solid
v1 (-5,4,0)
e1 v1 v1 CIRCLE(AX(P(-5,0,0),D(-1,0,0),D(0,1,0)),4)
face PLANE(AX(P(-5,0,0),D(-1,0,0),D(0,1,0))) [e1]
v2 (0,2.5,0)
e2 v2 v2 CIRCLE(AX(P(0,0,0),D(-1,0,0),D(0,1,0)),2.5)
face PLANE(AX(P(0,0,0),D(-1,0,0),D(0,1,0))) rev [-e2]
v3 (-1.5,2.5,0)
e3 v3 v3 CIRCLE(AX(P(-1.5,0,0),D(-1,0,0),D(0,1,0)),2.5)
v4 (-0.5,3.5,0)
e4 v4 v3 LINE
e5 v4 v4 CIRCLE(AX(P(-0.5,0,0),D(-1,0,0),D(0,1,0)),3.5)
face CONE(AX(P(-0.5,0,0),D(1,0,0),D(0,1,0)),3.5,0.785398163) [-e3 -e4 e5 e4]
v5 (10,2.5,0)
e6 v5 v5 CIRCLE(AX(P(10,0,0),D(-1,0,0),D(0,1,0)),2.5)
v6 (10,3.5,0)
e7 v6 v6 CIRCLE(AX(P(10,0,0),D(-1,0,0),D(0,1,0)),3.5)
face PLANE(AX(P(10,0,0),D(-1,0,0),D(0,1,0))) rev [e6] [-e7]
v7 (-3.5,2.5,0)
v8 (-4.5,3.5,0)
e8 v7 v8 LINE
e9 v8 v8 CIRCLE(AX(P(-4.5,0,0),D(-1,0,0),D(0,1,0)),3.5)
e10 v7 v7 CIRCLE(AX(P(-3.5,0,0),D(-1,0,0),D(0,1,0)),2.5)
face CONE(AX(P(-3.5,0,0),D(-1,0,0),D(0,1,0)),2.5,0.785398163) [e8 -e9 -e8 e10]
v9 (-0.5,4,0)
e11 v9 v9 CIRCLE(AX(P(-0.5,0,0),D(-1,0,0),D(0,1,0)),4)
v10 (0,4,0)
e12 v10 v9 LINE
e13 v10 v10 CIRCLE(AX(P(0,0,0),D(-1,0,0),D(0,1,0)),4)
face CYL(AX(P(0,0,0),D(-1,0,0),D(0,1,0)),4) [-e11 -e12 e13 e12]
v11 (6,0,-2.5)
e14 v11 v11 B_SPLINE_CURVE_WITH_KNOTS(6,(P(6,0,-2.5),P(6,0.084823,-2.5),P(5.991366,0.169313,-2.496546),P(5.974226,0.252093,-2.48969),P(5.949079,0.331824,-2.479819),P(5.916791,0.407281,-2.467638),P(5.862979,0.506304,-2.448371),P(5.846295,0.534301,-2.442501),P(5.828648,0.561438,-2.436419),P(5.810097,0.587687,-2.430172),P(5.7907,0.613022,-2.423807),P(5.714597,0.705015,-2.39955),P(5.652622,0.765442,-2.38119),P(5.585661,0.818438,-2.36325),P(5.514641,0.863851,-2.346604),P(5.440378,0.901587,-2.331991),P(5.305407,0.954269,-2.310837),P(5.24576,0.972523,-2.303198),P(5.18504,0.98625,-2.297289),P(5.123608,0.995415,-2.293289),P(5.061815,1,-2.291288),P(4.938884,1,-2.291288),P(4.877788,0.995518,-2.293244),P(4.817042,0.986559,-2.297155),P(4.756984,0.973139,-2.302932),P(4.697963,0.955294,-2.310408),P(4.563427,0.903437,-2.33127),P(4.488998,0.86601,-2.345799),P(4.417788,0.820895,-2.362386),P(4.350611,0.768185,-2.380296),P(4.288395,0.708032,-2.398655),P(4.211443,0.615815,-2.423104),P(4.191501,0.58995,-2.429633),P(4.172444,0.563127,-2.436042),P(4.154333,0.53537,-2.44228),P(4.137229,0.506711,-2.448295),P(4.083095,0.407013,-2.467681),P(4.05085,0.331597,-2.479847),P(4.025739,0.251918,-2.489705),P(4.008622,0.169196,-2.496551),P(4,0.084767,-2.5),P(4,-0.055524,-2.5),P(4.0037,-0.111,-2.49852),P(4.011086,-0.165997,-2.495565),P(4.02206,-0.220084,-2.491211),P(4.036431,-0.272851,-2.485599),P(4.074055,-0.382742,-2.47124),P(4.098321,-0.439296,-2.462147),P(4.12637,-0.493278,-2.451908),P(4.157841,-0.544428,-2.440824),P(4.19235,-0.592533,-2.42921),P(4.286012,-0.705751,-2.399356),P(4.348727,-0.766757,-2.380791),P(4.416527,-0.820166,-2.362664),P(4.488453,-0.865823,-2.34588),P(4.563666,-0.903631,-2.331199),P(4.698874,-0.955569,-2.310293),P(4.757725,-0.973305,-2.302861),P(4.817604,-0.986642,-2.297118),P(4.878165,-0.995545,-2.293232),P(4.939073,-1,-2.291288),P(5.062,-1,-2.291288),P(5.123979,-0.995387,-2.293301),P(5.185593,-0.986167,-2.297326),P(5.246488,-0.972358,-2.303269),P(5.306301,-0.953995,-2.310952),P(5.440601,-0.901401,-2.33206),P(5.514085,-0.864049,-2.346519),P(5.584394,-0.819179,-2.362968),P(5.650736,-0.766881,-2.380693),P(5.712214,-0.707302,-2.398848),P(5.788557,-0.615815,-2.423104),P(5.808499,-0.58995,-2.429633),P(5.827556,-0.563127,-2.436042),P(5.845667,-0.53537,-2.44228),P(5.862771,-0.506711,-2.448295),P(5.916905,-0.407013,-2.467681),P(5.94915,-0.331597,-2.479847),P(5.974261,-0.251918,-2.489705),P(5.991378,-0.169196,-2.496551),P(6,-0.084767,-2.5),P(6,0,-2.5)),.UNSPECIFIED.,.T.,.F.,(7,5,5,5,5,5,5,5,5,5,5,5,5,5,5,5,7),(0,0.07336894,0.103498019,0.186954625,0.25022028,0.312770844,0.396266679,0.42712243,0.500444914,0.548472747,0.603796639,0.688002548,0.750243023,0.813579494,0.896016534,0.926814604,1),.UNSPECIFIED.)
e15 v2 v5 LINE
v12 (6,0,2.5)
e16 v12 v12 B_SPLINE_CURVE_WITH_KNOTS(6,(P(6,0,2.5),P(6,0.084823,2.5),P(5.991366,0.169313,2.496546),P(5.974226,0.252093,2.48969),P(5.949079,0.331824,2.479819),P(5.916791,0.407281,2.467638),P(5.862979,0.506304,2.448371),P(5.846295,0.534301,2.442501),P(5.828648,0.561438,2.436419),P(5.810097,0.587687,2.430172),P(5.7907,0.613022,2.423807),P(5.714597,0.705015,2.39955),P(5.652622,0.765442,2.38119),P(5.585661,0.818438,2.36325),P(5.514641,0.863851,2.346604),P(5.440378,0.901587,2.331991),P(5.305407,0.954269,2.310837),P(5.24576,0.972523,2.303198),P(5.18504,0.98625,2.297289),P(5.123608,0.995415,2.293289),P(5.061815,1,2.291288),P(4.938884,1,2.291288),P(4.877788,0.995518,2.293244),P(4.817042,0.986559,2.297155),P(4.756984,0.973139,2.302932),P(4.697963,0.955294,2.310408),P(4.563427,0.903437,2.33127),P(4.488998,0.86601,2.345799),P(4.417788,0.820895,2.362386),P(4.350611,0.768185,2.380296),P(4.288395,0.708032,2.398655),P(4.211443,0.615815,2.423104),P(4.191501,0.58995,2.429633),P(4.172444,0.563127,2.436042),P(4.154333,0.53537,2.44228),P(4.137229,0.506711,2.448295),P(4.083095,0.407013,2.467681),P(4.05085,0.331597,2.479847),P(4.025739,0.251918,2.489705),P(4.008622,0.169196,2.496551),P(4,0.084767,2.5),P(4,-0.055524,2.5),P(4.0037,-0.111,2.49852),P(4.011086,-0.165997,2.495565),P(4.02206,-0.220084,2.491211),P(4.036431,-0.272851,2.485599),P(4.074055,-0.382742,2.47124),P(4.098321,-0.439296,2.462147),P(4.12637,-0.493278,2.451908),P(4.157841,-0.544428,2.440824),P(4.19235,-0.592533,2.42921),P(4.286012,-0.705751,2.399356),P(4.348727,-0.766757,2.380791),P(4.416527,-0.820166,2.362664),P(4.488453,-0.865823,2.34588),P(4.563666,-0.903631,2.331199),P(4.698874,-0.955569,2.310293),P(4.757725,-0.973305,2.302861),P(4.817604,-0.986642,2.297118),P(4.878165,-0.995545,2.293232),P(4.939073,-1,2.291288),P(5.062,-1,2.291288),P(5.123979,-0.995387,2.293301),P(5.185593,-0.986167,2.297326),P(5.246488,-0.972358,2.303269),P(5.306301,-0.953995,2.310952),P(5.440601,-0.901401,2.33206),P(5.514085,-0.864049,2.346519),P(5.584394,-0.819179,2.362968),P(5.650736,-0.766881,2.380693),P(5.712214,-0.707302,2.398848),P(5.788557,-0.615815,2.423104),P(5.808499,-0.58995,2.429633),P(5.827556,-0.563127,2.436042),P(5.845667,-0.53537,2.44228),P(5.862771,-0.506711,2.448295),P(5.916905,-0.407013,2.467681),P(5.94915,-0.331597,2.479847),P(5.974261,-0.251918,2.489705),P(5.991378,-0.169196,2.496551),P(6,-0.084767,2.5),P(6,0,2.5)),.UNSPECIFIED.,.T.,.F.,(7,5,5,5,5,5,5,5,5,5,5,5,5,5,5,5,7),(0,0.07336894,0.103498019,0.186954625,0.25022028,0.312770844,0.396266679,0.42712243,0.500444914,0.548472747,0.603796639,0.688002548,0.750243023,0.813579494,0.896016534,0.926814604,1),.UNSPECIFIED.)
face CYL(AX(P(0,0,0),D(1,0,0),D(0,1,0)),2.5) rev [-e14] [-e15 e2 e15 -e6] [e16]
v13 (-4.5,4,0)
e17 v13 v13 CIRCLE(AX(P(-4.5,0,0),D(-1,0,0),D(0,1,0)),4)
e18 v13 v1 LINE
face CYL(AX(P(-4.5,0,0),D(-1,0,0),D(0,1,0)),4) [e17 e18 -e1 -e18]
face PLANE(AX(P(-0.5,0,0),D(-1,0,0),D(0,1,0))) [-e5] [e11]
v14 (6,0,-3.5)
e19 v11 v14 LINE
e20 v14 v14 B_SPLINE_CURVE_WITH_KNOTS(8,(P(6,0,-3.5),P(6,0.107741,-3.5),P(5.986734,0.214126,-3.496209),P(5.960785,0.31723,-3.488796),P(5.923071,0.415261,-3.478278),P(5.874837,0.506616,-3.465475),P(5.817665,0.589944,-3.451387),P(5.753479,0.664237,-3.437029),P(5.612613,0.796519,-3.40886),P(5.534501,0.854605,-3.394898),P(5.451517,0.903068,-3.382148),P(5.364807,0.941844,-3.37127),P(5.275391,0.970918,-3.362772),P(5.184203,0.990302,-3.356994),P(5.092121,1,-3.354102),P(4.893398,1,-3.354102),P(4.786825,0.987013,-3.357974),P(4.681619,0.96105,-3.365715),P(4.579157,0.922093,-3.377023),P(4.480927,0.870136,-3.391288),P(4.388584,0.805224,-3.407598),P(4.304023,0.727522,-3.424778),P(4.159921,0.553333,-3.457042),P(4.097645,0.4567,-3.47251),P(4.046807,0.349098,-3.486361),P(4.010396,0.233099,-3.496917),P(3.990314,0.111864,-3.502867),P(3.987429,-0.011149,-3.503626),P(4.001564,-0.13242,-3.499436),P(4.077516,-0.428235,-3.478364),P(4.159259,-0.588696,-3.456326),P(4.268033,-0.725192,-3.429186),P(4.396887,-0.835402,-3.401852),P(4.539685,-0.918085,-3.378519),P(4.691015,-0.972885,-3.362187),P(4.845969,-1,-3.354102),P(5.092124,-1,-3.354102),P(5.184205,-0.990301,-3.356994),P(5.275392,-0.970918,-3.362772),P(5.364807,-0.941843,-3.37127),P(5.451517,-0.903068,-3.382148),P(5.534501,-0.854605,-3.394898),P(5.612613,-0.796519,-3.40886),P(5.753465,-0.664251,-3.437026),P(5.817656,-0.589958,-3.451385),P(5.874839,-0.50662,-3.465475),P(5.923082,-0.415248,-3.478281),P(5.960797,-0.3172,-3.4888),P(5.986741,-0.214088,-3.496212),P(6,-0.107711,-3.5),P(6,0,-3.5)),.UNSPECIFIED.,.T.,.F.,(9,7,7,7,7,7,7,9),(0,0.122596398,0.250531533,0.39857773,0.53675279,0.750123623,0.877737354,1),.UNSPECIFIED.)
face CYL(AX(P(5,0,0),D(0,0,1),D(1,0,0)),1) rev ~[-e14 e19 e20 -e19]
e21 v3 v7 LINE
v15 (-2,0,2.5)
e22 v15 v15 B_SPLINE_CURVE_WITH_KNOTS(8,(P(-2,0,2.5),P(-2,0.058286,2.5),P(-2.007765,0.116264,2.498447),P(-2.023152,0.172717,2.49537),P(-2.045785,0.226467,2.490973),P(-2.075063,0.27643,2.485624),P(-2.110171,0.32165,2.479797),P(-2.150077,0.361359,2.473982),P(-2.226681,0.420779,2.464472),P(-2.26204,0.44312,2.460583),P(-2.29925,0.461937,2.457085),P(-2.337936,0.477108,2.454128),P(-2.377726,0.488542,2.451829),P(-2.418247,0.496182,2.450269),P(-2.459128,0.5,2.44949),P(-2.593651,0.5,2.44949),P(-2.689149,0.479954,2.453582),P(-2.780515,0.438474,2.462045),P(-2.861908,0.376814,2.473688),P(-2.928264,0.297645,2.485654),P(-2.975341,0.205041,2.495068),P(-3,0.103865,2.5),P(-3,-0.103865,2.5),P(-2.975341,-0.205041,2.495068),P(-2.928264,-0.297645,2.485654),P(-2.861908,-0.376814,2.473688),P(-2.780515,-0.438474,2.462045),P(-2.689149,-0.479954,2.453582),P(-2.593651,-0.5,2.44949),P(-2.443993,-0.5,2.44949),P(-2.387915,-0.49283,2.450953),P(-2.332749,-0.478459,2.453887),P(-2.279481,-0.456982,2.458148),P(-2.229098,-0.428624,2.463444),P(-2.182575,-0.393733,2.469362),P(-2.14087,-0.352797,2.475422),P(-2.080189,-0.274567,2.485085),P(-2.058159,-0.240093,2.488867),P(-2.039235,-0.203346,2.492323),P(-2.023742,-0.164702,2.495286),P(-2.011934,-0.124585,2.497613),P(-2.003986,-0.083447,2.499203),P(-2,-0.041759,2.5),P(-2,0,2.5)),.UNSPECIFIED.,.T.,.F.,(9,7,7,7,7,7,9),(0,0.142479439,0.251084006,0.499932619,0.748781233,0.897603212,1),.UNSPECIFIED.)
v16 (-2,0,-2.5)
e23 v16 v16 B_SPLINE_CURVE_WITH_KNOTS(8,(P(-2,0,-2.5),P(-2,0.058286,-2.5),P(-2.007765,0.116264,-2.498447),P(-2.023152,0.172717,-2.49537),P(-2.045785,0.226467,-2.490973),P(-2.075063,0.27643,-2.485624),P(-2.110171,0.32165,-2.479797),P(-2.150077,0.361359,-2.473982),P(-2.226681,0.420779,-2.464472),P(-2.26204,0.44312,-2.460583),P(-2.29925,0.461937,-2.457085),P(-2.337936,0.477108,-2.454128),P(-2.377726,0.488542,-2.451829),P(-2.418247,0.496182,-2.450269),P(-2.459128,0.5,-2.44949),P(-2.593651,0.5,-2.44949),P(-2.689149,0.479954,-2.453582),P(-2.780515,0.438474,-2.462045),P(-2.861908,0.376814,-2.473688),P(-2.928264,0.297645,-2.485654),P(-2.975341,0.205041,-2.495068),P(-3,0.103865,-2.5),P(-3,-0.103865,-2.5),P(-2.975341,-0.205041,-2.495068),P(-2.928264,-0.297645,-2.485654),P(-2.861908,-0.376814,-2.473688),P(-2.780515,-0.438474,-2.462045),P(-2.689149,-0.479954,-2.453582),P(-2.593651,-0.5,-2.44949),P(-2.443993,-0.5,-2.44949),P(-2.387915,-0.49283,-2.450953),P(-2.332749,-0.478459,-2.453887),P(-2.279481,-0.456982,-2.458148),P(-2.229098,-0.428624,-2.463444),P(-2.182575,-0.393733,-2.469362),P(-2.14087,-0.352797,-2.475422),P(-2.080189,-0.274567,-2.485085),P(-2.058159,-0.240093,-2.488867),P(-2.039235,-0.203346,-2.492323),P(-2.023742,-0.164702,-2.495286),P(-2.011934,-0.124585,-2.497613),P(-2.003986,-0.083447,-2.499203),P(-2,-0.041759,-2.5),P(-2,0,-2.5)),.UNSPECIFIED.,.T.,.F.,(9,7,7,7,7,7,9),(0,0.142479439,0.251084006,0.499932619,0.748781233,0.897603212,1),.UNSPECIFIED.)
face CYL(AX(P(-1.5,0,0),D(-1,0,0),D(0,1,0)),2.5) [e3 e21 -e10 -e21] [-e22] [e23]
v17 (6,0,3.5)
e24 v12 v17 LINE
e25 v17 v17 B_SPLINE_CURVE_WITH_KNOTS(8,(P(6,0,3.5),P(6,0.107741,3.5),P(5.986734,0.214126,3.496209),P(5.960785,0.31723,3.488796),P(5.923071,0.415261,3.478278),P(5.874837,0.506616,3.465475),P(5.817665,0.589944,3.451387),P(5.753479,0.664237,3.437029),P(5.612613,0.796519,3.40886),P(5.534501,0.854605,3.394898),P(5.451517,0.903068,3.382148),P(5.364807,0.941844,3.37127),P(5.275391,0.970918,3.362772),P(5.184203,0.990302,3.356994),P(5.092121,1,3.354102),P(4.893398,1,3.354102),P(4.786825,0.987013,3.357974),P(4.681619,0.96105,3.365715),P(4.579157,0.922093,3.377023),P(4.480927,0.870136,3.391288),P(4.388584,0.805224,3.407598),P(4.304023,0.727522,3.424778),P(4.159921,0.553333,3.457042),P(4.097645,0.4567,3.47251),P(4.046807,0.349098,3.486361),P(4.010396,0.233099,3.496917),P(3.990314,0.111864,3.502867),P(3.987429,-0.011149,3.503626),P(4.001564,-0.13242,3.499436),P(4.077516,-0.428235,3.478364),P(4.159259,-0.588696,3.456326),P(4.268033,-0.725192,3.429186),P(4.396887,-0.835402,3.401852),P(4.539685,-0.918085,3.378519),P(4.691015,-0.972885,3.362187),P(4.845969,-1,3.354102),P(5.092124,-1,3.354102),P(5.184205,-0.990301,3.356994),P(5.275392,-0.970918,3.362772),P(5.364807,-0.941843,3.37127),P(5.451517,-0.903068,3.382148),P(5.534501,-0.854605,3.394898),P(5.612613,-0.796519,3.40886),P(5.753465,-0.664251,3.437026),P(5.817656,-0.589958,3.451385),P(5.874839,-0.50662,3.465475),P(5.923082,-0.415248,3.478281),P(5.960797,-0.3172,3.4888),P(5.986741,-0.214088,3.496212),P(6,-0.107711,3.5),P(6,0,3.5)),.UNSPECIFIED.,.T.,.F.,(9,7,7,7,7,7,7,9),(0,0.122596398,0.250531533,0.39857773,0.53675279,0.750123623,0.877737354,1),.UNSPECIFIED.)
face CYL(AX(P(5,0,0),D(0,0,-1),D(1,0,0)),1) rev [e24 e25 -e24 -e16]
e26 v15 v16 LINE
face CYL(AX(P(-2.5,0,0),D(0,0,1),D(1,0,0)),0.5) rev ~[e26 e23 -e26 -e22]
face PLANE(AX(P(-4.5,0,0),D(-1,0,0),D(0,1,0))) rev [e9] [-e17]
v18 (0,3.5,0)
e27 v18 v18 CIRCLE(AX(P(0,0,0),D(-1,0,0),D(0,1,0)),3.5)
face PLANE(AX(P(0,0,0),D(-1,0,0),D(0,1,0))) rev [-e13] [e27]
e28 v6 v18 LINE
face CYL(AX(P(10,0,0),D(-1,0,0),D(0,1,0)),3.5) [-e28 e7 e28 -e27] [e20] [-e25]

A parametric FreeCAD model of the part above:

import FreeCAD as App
import Part
import Sketcher

doc = App.newDocument("Part")
body = doc.addObject("PartDesign::Body", "Body")

# Sketch on XY plane
sketch1 = body.newObject("Sketcher::SketchObject", "Sketch")
sketch1.AttachmentSupport = (doc.getObject("XY_Plane"), [""])
sketch1.MapMode = "FlatFace"
sketch1.addGeometry([
    Part.LineSegment(App.Vector(0, 0, 0), App.Vector(0, 2.5, 0)),  # 0
    Part.LineSegment(App.Vector(0, 2.5, 0), App.Vector(10, 2.5, 0)),  # 1
    Part.LineSegment(App.Vector(10, 2.5, 0), App.Vector(10, 3.5, 0)),  # 2
    Part.LineSegment(App.Vector(10, 3.5, 0), App.Vector(0, 3.5, 0)),  # 3
    Part.LineSegment(App.Vector(0, 3.5, 0), App.Vector(0, 4, 0)),  # 4
    Part.LineSegment(App.Vector(0, 4, 0), App.Vector(-0.5, 4, 0)),  # 5
    Part.LineSegment(App.Vector(-0.5, 4, 0), App.Vector(-0.5, 3.5, 0)),  # 6
    Part.LineSegment(App.Vector(-0.5, 3.5, 0), App.Vector(-1.5, 2.5, 0)),  # 7
    Part.LineSegment(App.Vector(-1.5, 2.5, 0), App.Vector(-3.5, 2.5, 0)),  # 8
    Part.LineSegment(App.Vector(-3.5, 2.5, 0), App.Vector(-4.5, 3.5, 0)),  # 9
    Part.LineSegment(App.Vector(-4.5, 3.5, 0), App.Vector(-4.5, 4, 0)),  # 10
    Part.LineSegment(App.Vector(-4.5, 4, 0), App.Vector(-5, 4, 0)),  # 11
    Part.LineSegment(App.Vector(-5, 4, 0), App.Vector(-5, 0, 0)),  # 12
    Part.LineSegment(App.Vector(-5, 0, 0), App.Vector(0, 0, 0)),  # 13
], False)
sketch1.addConstraint([
    Sketcher.Constraint("Coincident", 0, 2, 1, 1),
    Sketcher.Constraint("Coincident", 1, 2, 2, 1),
    Sketcher.Constraint("Coincident", 2, 2, 3, 1),
    Sketcher.Constraint("Coincident", 3, 2, 4, 1),
    Sketcher.Constraint("Coincident", 4, 2, 5, 1),
    Sketcher.Constraint("Coincident", 5, 2, 6, 1),
    Sketcher.Constraint("Coincident", 6, 2, 7, 1),
    Sketcher.Constraint("Coincident", 7, 2, 8, 1),
    Sketcher.Constraint("Coincident", 8, 2, 9, 1),
    Sketcher.Constraint("Coincident", 9, 2, 10, 1),
    Sketcher.Constraint("Coincident", 10, 2, 11, 1),
    Sketcher.Constraint("Coincident", 11, 2, 12, 1),
    Sketcher.Constraint("Coincident", 12, 2, 13, 1),
    Sketcher.Constraint("Coincident", 13, 2, 0, 1),
    Sketcher.Constraint("Vertical", 0),
    Sketcher.Constraint("Horizontal", 1),
    Sketcher.Constraint("Vertical", 2),
    Sketcher.Constraint("Horizontal", 3),
    Sketcher.Constraint("Vertical", 4),
    Sketcher.Constraint("Horizontal", 5),
    Sketcher.Constraint("Vertical", 6),
    Sketcher.Constraint("Horizontal", 8),
    Sketcher.Constraint("Vertical", 10),
    Sketcher.Constraint("Horizontal", 11),
    Sketcher.Constraint("Vertical", 12),
    Sketcher.Constraint("Horizontal", 13),
    Sketcher.Constraint("Coincident", 13, 2, -1, 1),
    Sketcher.Constraint("PointOnObject", 3, 2, -2),
    Sketcher.Constraint("Perpendicular", 7, 9),
    Sketcher.Constraint("Horizontal", 3, 2, 6, 2),
    Sketcher.Constraint("Horizontal", 1, 2, 7, 2),
    Sketcher.Constraint("Horizontal", 6, 2, 9, 2),
    Sketcher.Constraint("Horizontal", 5, 2, 10, 2),
    Sketcher.Constraint("Equal", 5, 11),
    Sketcher.Constraint("Equal", 11, 4),
    Sketcher.Constraint("Equal", 7, 9),
    Sketcher.Constraint("DistanceX", 1, 1, 1, 2, 10.0),
    Sketcher.Constraint("DistanceX", 8, 2, 8, 1, 2.0),
    Sketcher.Constraint("DistanceX", 13, 1, 13, 2, 5.0),
    Sketcher.Constraint("DistanceY", 2, 1, 2, 2, 1.0),
    Sketcher.Constraint("DistanceY", 12, 2, 12, 1, 4.0),
])
revolution = body.newObject("PartDesign::Revolution", "Revolution")
revolution.Profile = sketch1
revolution.ReferenceAxis = (sketch1, ["H_Axis"])
revolution.Angle = 360

# Sketch on XY plane
sketch2 = body.newObject("Sketcher::SketchObject", "Sketch001")
sketch2.AttachmentSupport = (doc.getObject("XY_Plane"), [""])
sketch2.MapMode = "FlatFace"
sketch2.addGeometry([
    Part.Circle(App.Vector(-2.5, 0, 0), App.Vector(0, 0, 1), 0.5),
    Part.Circle(App.Vector(5, 0, 0), App.Vector(0, 0, 1), 1),
], False)
sketch2.addConstraint([
    Sketcher.Constraint("PointOnObject", 0, 3, -1),
    Sketcher.Constraint("PointOnObject", 1, 3, -1),
    Sketcher.Constraint("Diameter", 0, 1.0),
    Sketcher.Constraint("Diameter", 1, 2.0),
    Sketcher.Constraint("DistanceX", -1, 1, 1, 3, 5.0),
    Sketcher.Constraint("DistanceX", 0, 3, -1, 1, 2.5),
])
pocket1 = body.newObject("PartDesign::Pocket", "Pocket")
pocket1.Profile = sketch2
pocket1.Type = "ThroughAll"
pocket1.Midplane = True

doc.recompute()
